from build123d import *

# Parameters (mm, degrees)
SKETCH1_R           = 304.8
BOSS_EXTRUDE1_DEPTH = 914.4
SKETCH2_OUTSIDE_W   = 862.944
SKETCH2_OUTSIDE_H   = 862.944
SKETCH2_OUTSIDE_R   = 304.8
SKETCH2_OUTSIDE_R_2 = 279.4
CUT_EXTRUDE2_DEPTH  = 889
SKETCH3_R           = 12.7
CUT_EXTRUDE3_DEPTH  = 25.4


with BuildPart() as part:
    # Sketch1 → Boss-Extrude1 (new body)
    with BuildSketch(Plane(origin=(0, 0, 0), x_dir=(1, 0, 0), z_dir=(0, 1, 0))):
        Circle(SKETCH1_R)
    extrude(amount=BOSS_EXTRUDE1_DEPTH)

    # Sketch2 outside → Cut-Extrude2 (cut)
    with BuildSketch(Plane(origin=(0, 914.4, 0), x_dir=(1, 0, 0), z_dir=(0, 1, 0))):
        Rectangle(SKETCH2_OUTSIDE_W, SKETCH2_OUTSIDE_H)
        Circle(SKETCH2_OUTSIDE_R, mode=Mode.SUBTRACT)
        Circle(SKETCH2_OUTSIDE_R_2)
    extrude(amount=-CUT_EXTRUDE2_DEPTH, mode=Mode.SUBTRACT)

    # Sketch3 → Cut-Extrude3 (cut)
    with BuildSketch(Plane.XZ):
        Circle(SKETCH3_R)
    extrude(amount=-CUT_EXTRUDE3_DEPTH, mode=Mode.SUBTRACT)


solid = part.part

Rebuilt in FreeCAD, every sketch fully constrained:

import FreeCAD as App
import Part
import Sketcher
Q = App.Units.Quantity


def add_polygon(sketch, points):
    """Adds a closed chain of lines whose ends are joined by coincident constraints."""
    first, n = sketch.GeometryCount, len(points)
    for a, b in zip(points, points[1:] + points[:1]):
        sketch.addGeometry(Part.LineSegment(App.Vector(*a, 0), App.Vector(*b, 0)), False)
    for i in range(n):
        sketch.addConstraint(Sketcher.Constraint("Coincident", first + i, 2, first + (i + 1) % n, 1))

doc = App.newDocument("Part")
params = doc.addObject("Spreadsheet::Sheet", "Params")
for row, (alias, value) in enumerate([
    ("sketch1_diameter", "24 in"),
    ("pad1_length", "36 in"),
    ("sketch2_diameter", "24 in"),
    ("sketch2_diameter2", "22 in"),
    ("pocket1_length", "35 in"),
    ("sketch3_diameter", "1 in"),
    ("pocket2_length", "1 in"),
], start=1):
    params.set(f"A{row}", alias)
    params.set(f"B{row}", "=" + value)
    params.setAlias(f"B{row}", alias)

body = doc.addObject("PartDesign::Body", "Body")

# Sketch on XZ plane
sketch1 = body.newObject("Sketcher::SketchObject", "Sketch")
sketch1.AttachmentSupport = (doc.getObject("XZ_Plane"), [""])
sketch1.MapMode = "FlatFace"
sketch1.addGeometry(Part.Circle(App.Vector(0, 0, 0), App.Vector(0, 0, 1), 305), False)
sketch1.addConstraint([
    Sketcher.Constraint("Coincident", 0, 3, -1, 1),
    Sketcher.Constraint("Diameter", 0, Q("24 in")),
])
sketch1.setExpression("Constraints[1]", "Params.sketch1_diameter")
pad1 = body.newObject("PartDesign::Pad", "Pad")
pad1.Profile = sketch1
pad1.setExpression("Length", "Params.pad1_length")
pad1.Reversed = True

# Sketch on XZ plane
sketch2 = body.newObject("Sketcher::SketchObject", "Sketch001")
sketch2.AttachmentSupport = (doc.getObject("XZ_Plane"), [""])
sketch2.MapMode = "FlatFace"
sketch2.AttachmentOffset = App.Placement(App.Vector(0, 0, -36 * 25.4), App.Rotation())
add_polygon(sketch2, [(-431, -431), (-431, 431), (431, 431), (431, -431)])  # lines 0-3
sketch2.addGeometry(Part.Circle(App.Vector(0, 0, 0), App.Vector(0, 0, 1), 305), False)  # 4
sketch2.addGeometry(Part.Circle(App.Vector(0, 0, 0), App.Vector(0, 0, 1), 279), False)  # 5
sketch2.addConstraint([
    Sketcher.Constraint("Vertical", 0),
    Sketcher.Constraint("Horizontal", 1),
    Sketcher.Constraint("Vertical", 2),
    Sketcher.Constraint("Horizontal", 3),
    Sketcher.Constraint("Coincident", 4, 3, -1, 1),
    Sketcher.Constraint("Coincident", 5, 3, -1, 1),
    Sketcher.Constraint("Symmetric", 0, 2, 2, 2, -1, 1),
    Sketcher.Constraint("Equal", 3, 0),
    Sketcher.Constraint("Diameter", 4, Q("24 in")),
    Sketcher.Constraint("Diameter", 5, Q("22 in")),
    Sketcher.Constraint("DistanceX", 1, 1, 1, 2, 862.944),
])
sketch2.setExpression("Constraints[12]", "Params.sketch2_diameter")
sketch2.setExpression("Constraints[13]", "Params.sketch2_diameter2")
pocket1 = body.newObject("PartDesign::Pocket", "Pocket")
pocket1.Profile = sketch2
pocket1.setExpression("Length", "Params.pocket1_length")
pocket1.Reversed = True

# Sketch on XZ plane
sketch3 = body.newObject("Sketcher::SketchObject", "Sketch002")
sketch3.AttachmentSupport = (doc.getObject("XZ_Plane"), [""])
sketch3.MapMode = "FlatFace"
sketch3.addGeometry(Part.Circle(App.Vector(0, 0, 0), App.Vector(0, 0, 1), 13), False)
sketch3.addConstraint([
    Sketcher.Constraint("Coincident", 0, 3, -1, 1),
    Sketcher.Constraint("Diameter", 0, Q("1 in")),
])
sketch3.setExpression("Constraints[1]", "Params.sketch3_diameter")
pocket2 = body.newObject("PartDesign::Pocket", "Pocket001")
pocket2.Profile = sketch3
pocket2.setExpression("Length", "Params.pocket2_length")

doc.recompute()
